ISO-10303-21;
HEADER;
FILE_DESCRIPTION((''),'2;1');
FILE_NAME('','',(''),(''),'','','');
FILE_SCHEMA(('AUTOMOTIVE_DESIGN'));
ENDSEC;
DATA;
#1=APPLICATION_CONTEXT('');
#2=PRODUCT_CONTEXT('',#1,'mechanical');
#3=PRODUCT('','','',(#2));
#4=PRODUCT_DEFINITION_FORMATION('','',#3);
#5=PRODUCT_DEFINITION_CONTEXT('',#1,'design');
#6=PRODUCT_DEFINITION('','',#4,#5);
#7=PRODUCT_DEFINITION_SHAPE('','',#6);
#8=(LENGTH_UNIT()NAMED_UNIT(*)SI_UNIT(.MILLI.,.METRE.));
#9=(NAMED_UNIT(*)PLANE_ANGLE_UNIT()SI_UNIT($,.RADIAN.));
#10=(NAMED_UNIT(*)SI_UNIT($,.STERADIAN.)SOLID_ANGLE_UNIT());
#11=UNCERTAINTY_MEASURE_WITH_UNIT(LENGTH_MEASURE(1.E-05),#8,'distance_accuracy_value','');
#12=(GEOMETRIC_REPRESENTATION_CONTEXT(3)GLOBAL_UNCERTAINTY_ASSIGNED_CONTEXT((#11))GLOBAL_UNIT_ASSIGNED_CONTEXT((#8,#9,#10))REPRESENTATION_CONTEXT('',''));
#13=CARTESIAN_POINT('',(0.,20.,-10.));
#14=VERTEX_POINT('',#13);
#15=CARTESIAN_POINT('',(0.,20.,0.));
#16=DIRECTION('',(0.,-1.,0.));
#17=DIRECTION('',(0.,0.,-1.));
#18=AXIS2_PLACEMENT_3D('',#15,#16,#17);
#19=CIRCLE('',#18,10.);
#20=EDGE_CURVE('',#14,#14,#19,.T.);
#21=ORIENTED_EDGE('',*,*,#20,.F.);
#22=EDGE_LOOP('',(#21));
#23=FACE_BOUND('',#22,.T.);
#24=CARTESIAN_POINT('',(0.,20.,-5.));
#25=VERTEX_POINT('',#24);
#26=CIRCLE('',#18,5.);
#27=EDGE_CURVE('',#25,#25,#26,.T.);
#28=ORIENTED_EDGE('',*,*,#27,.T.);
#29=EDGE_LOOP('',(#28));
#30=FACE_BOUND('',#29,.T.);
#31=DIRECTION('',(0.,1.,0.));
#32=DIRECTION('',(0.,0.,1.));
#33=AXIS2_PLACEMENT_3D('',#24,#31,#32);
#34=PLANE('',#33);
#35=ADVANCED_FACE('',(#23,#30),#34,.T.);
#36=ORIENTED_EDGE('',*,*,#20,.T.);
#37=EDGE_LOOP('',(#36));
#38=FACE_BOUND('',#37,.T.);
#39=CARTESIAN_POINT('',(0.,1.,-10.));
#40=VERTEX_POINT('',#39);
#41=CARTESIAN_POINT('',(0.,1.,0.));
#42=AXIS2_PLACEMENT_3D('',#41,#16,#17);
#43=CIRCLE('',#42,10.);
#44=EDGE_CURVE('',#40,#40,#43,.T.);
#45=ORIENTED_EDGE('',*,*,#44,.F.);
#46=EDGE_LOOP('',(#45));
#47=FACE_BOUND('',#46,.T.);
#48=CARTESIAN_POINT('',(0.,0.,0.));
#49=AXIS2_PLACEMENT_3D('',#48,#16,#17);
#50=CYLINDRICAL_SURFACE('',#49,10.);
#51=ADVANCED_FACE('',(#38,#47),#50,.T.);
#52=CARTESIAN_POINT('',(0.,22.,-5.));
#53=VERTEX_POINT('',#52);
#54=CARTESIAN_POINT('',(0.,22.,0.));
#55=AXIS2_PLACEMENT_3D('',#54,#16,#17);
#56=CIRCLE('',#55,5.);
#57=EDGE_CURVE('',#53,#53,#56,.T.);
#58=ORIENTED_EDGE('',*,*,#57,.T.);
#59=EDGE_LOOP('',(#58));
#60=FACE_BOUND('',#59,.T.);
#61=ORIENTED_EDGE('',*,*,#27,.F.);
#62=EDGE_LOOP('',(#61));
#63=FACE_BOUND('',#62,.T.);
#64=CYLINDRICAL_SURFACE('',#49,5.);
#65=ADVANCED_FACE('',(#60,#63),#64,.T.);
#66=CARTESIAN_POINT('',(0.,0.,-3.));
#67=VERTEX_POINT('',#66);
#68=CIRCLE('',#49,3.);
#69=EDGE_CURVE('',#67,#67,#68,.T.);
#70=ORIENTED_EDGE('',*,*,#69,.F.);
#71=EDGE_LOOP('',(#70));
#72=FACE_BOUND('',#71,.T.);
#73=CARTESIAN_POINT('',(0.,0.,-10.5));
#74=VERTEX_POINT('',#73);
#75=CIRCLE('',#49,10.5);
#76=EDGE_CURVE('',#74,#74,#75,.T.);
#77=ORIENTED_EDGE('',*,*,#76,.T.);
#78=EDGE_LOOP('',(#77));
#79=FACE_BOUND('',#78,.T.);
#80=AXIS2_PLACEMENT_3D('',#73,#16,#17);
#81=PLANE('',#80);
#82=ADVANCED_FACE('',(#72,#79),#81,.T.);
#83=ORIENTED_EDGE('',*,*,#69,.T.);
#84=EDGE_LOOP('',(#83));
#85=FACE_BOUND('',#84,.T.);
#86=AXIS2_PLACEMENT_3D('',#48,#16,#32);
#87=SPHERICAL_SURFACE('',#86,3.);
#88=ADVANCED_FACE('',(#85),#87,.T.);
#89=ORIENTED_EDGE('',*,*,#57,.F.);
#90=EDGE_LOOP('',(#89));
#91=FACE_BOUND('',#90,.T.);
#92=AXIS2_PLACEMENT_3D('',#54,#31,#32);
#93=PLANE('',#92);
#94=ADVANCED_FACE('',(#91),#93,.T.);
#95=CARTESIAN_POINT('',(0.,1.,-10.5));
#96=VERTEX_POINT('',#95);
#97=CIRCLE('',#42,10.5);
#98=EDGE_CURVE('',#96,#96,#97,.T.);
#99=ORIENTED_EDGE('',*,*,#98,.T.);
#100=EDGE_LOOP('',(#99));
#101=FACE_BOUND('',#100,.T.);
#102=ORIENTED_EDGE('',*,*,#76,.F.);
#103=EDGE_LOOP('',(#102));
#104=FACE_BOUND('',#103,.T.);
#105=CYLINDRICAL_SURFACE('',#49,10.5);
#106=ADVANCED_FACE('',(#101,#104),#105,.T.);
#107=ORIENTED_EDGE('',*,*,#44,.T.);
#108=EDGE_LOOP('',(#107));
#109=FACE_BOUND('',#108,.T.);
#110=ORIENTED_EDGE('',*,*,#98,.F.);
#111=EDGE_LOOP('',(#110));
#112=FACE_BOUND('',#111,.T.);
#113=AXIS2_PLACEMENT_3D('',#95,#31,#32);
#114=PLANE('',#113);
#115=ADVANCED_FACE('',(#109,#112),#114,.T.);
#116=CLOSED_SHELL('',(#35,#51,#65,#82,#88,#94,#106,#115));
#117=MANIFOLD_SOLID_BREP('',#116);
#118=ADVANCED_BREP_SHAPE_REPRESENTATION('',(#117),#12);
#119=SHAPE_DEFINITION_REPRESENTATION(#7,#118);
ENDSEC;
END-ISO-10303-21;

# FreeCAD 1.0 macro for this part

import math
import FreeCAD as App
import Part
import Sketcher

V = App.Vector
Q = App.Units.Quantity

doc = App.newDocument("Part")
body = doc.addObject("PartDesign::Body", "Body")

# Sketch on YZ plane
sketch1 = body.newObject("Sketcher::SketchObject", "Sketch")
sketch1.AttachmentSupport = (doc.getObject("YZ_Plane"), [""])
sketch1.MapMode = "FlatFace"
sketch1.addGeometry(Part.LineSegment(V(0, -3, 0), V(0, -10.5, 0)), False)
sketch1.addGeometry(Part.LineSegment(V(0, -10.5, 0), V(1, -10.5, 0)), False)
sketch1.addGeometry(Part.LineSegment(V(1, -10.5, 0), V(1, -10, 0)), False)
sketch1.addGeometry(Part.LineSegment(V(1, -10, 0), V(20, -10, 0)), False)
sketch1.addGeometry(Part.LineSegment(V(20, -10, 0), V(20, -5, 0)), False)
sketch1.addGeometry(Part.LineSegment(V(20, -5, 0), V(22, -5, 0)), False)
sketch1.addGeometry(Part.LineSegment(V(22, -5, 0), V(22, 0, 0)), False)
sketch1.addGeometry(Part.LineSegment(V(22, 0, 0), V(-3, 0, 0)), False)
sketch1.addGeometry(Part.ArcOfCircle(Part.Circle(V(0, 0, 0), V(0, 0, 1), 3), math.radians(180), math.radians(270)), False)
sketch1.addConstraint(Sketcher.Constraint("Coincident", 0, 2, 1, 1))
sketch1.addConstraint(Sketcher.Constraint("Coincident", 1, 2, 2, 1))
sketch1.addConstraint(Sketcher.Constraint("Coincident", 2, 2, 3, 1))
sketch1.addConstraint(Sketcher.Constraint("Coincident", 3, 2, 4, 1))
sketch1.addConstraint(Sketcher.Constraint("Coincident", 4, 2, 5, 1))
sketch1.addConstraint(Sketcher.Constraint("Coincident", 5, 2, 6, 1))
sketch1.addConstraint(Sketcher.Constraint("Coincident", 6, 2, 7, 1))
sketch1.addConstraint(Sketcher.Constraint("Coincident", 7, 2, 8, 1))
sketch1.addConstraint(Sketcher.Constraint("Coincident", 8, 2, 0, 1))
sketch1.addConstraint(Sketcher.Constraint("Vertical", 0))
sketch1.addConstraint(Sketcher.Constraint("Horizontal", 1))
sketch1.addConstraint(Sketcher.Constraint("Vertical", 2))
sketch1.addConstraint(Sketcher.Constraint("Horizontal", 3))
sketch1.addConstraint(Sketcher.Constraint("Vertical", 4))
sketch1.addConstraint(Sketcher.Constraint("Horizontal", 5))
sketch1.addConstraint(Sketcher.Constraint("Vertical", 6))
sketch1.addConstraint(Sketcher.Constraint("Horizontal", 7))
sketch1.addConstraint(Sketcher.Constraint("Coincident", 8, 3, -1, 1))
sketch1.addConstraint(Sketcher.Constraint("PointOnObject", 0, 2, -2))
sketch1.addConstraint(Sketcher.Constraint("PointOnObject", 6, 2, -1))
sketch1.addConstraint(Sketcher.Constraint("Equal", 4, 6))
sketch1.addConstraint(Sketcher.Constraint("Radius", 8, Q("3 mm")))
sketch1.addConstraint(Sketcher.Constraint("DistanceX", 1, 1, 1, 2, Q("1 mm")))
sketch1.addConstraint(Sketcher.Constraint("DistanceX", 3, 1, 3, 2, Q("19 mm")))
sketch1.addConstraint(Sketcher.Constraint("DistanceX", 5, 1, 5, 2, Q("2 mm")))
sketch1.addConstraint(Sketcher.Constraint("DistanceY", 4, 1, 4, 2, Q("5 mm")))
sketch1.addConstraint(Sketcher.Constraint("DistanceY", 0, 2, 0, 1, Q("7.5 mm")))
revolution = body.newObject("PartDesign::Revolution", "Revolution")
revolution.Profile = sketch1
revolution.ReferenceAxis = (sketch1, ["H_Axis"])
revolution.Angle = 360

doc.recompute()
